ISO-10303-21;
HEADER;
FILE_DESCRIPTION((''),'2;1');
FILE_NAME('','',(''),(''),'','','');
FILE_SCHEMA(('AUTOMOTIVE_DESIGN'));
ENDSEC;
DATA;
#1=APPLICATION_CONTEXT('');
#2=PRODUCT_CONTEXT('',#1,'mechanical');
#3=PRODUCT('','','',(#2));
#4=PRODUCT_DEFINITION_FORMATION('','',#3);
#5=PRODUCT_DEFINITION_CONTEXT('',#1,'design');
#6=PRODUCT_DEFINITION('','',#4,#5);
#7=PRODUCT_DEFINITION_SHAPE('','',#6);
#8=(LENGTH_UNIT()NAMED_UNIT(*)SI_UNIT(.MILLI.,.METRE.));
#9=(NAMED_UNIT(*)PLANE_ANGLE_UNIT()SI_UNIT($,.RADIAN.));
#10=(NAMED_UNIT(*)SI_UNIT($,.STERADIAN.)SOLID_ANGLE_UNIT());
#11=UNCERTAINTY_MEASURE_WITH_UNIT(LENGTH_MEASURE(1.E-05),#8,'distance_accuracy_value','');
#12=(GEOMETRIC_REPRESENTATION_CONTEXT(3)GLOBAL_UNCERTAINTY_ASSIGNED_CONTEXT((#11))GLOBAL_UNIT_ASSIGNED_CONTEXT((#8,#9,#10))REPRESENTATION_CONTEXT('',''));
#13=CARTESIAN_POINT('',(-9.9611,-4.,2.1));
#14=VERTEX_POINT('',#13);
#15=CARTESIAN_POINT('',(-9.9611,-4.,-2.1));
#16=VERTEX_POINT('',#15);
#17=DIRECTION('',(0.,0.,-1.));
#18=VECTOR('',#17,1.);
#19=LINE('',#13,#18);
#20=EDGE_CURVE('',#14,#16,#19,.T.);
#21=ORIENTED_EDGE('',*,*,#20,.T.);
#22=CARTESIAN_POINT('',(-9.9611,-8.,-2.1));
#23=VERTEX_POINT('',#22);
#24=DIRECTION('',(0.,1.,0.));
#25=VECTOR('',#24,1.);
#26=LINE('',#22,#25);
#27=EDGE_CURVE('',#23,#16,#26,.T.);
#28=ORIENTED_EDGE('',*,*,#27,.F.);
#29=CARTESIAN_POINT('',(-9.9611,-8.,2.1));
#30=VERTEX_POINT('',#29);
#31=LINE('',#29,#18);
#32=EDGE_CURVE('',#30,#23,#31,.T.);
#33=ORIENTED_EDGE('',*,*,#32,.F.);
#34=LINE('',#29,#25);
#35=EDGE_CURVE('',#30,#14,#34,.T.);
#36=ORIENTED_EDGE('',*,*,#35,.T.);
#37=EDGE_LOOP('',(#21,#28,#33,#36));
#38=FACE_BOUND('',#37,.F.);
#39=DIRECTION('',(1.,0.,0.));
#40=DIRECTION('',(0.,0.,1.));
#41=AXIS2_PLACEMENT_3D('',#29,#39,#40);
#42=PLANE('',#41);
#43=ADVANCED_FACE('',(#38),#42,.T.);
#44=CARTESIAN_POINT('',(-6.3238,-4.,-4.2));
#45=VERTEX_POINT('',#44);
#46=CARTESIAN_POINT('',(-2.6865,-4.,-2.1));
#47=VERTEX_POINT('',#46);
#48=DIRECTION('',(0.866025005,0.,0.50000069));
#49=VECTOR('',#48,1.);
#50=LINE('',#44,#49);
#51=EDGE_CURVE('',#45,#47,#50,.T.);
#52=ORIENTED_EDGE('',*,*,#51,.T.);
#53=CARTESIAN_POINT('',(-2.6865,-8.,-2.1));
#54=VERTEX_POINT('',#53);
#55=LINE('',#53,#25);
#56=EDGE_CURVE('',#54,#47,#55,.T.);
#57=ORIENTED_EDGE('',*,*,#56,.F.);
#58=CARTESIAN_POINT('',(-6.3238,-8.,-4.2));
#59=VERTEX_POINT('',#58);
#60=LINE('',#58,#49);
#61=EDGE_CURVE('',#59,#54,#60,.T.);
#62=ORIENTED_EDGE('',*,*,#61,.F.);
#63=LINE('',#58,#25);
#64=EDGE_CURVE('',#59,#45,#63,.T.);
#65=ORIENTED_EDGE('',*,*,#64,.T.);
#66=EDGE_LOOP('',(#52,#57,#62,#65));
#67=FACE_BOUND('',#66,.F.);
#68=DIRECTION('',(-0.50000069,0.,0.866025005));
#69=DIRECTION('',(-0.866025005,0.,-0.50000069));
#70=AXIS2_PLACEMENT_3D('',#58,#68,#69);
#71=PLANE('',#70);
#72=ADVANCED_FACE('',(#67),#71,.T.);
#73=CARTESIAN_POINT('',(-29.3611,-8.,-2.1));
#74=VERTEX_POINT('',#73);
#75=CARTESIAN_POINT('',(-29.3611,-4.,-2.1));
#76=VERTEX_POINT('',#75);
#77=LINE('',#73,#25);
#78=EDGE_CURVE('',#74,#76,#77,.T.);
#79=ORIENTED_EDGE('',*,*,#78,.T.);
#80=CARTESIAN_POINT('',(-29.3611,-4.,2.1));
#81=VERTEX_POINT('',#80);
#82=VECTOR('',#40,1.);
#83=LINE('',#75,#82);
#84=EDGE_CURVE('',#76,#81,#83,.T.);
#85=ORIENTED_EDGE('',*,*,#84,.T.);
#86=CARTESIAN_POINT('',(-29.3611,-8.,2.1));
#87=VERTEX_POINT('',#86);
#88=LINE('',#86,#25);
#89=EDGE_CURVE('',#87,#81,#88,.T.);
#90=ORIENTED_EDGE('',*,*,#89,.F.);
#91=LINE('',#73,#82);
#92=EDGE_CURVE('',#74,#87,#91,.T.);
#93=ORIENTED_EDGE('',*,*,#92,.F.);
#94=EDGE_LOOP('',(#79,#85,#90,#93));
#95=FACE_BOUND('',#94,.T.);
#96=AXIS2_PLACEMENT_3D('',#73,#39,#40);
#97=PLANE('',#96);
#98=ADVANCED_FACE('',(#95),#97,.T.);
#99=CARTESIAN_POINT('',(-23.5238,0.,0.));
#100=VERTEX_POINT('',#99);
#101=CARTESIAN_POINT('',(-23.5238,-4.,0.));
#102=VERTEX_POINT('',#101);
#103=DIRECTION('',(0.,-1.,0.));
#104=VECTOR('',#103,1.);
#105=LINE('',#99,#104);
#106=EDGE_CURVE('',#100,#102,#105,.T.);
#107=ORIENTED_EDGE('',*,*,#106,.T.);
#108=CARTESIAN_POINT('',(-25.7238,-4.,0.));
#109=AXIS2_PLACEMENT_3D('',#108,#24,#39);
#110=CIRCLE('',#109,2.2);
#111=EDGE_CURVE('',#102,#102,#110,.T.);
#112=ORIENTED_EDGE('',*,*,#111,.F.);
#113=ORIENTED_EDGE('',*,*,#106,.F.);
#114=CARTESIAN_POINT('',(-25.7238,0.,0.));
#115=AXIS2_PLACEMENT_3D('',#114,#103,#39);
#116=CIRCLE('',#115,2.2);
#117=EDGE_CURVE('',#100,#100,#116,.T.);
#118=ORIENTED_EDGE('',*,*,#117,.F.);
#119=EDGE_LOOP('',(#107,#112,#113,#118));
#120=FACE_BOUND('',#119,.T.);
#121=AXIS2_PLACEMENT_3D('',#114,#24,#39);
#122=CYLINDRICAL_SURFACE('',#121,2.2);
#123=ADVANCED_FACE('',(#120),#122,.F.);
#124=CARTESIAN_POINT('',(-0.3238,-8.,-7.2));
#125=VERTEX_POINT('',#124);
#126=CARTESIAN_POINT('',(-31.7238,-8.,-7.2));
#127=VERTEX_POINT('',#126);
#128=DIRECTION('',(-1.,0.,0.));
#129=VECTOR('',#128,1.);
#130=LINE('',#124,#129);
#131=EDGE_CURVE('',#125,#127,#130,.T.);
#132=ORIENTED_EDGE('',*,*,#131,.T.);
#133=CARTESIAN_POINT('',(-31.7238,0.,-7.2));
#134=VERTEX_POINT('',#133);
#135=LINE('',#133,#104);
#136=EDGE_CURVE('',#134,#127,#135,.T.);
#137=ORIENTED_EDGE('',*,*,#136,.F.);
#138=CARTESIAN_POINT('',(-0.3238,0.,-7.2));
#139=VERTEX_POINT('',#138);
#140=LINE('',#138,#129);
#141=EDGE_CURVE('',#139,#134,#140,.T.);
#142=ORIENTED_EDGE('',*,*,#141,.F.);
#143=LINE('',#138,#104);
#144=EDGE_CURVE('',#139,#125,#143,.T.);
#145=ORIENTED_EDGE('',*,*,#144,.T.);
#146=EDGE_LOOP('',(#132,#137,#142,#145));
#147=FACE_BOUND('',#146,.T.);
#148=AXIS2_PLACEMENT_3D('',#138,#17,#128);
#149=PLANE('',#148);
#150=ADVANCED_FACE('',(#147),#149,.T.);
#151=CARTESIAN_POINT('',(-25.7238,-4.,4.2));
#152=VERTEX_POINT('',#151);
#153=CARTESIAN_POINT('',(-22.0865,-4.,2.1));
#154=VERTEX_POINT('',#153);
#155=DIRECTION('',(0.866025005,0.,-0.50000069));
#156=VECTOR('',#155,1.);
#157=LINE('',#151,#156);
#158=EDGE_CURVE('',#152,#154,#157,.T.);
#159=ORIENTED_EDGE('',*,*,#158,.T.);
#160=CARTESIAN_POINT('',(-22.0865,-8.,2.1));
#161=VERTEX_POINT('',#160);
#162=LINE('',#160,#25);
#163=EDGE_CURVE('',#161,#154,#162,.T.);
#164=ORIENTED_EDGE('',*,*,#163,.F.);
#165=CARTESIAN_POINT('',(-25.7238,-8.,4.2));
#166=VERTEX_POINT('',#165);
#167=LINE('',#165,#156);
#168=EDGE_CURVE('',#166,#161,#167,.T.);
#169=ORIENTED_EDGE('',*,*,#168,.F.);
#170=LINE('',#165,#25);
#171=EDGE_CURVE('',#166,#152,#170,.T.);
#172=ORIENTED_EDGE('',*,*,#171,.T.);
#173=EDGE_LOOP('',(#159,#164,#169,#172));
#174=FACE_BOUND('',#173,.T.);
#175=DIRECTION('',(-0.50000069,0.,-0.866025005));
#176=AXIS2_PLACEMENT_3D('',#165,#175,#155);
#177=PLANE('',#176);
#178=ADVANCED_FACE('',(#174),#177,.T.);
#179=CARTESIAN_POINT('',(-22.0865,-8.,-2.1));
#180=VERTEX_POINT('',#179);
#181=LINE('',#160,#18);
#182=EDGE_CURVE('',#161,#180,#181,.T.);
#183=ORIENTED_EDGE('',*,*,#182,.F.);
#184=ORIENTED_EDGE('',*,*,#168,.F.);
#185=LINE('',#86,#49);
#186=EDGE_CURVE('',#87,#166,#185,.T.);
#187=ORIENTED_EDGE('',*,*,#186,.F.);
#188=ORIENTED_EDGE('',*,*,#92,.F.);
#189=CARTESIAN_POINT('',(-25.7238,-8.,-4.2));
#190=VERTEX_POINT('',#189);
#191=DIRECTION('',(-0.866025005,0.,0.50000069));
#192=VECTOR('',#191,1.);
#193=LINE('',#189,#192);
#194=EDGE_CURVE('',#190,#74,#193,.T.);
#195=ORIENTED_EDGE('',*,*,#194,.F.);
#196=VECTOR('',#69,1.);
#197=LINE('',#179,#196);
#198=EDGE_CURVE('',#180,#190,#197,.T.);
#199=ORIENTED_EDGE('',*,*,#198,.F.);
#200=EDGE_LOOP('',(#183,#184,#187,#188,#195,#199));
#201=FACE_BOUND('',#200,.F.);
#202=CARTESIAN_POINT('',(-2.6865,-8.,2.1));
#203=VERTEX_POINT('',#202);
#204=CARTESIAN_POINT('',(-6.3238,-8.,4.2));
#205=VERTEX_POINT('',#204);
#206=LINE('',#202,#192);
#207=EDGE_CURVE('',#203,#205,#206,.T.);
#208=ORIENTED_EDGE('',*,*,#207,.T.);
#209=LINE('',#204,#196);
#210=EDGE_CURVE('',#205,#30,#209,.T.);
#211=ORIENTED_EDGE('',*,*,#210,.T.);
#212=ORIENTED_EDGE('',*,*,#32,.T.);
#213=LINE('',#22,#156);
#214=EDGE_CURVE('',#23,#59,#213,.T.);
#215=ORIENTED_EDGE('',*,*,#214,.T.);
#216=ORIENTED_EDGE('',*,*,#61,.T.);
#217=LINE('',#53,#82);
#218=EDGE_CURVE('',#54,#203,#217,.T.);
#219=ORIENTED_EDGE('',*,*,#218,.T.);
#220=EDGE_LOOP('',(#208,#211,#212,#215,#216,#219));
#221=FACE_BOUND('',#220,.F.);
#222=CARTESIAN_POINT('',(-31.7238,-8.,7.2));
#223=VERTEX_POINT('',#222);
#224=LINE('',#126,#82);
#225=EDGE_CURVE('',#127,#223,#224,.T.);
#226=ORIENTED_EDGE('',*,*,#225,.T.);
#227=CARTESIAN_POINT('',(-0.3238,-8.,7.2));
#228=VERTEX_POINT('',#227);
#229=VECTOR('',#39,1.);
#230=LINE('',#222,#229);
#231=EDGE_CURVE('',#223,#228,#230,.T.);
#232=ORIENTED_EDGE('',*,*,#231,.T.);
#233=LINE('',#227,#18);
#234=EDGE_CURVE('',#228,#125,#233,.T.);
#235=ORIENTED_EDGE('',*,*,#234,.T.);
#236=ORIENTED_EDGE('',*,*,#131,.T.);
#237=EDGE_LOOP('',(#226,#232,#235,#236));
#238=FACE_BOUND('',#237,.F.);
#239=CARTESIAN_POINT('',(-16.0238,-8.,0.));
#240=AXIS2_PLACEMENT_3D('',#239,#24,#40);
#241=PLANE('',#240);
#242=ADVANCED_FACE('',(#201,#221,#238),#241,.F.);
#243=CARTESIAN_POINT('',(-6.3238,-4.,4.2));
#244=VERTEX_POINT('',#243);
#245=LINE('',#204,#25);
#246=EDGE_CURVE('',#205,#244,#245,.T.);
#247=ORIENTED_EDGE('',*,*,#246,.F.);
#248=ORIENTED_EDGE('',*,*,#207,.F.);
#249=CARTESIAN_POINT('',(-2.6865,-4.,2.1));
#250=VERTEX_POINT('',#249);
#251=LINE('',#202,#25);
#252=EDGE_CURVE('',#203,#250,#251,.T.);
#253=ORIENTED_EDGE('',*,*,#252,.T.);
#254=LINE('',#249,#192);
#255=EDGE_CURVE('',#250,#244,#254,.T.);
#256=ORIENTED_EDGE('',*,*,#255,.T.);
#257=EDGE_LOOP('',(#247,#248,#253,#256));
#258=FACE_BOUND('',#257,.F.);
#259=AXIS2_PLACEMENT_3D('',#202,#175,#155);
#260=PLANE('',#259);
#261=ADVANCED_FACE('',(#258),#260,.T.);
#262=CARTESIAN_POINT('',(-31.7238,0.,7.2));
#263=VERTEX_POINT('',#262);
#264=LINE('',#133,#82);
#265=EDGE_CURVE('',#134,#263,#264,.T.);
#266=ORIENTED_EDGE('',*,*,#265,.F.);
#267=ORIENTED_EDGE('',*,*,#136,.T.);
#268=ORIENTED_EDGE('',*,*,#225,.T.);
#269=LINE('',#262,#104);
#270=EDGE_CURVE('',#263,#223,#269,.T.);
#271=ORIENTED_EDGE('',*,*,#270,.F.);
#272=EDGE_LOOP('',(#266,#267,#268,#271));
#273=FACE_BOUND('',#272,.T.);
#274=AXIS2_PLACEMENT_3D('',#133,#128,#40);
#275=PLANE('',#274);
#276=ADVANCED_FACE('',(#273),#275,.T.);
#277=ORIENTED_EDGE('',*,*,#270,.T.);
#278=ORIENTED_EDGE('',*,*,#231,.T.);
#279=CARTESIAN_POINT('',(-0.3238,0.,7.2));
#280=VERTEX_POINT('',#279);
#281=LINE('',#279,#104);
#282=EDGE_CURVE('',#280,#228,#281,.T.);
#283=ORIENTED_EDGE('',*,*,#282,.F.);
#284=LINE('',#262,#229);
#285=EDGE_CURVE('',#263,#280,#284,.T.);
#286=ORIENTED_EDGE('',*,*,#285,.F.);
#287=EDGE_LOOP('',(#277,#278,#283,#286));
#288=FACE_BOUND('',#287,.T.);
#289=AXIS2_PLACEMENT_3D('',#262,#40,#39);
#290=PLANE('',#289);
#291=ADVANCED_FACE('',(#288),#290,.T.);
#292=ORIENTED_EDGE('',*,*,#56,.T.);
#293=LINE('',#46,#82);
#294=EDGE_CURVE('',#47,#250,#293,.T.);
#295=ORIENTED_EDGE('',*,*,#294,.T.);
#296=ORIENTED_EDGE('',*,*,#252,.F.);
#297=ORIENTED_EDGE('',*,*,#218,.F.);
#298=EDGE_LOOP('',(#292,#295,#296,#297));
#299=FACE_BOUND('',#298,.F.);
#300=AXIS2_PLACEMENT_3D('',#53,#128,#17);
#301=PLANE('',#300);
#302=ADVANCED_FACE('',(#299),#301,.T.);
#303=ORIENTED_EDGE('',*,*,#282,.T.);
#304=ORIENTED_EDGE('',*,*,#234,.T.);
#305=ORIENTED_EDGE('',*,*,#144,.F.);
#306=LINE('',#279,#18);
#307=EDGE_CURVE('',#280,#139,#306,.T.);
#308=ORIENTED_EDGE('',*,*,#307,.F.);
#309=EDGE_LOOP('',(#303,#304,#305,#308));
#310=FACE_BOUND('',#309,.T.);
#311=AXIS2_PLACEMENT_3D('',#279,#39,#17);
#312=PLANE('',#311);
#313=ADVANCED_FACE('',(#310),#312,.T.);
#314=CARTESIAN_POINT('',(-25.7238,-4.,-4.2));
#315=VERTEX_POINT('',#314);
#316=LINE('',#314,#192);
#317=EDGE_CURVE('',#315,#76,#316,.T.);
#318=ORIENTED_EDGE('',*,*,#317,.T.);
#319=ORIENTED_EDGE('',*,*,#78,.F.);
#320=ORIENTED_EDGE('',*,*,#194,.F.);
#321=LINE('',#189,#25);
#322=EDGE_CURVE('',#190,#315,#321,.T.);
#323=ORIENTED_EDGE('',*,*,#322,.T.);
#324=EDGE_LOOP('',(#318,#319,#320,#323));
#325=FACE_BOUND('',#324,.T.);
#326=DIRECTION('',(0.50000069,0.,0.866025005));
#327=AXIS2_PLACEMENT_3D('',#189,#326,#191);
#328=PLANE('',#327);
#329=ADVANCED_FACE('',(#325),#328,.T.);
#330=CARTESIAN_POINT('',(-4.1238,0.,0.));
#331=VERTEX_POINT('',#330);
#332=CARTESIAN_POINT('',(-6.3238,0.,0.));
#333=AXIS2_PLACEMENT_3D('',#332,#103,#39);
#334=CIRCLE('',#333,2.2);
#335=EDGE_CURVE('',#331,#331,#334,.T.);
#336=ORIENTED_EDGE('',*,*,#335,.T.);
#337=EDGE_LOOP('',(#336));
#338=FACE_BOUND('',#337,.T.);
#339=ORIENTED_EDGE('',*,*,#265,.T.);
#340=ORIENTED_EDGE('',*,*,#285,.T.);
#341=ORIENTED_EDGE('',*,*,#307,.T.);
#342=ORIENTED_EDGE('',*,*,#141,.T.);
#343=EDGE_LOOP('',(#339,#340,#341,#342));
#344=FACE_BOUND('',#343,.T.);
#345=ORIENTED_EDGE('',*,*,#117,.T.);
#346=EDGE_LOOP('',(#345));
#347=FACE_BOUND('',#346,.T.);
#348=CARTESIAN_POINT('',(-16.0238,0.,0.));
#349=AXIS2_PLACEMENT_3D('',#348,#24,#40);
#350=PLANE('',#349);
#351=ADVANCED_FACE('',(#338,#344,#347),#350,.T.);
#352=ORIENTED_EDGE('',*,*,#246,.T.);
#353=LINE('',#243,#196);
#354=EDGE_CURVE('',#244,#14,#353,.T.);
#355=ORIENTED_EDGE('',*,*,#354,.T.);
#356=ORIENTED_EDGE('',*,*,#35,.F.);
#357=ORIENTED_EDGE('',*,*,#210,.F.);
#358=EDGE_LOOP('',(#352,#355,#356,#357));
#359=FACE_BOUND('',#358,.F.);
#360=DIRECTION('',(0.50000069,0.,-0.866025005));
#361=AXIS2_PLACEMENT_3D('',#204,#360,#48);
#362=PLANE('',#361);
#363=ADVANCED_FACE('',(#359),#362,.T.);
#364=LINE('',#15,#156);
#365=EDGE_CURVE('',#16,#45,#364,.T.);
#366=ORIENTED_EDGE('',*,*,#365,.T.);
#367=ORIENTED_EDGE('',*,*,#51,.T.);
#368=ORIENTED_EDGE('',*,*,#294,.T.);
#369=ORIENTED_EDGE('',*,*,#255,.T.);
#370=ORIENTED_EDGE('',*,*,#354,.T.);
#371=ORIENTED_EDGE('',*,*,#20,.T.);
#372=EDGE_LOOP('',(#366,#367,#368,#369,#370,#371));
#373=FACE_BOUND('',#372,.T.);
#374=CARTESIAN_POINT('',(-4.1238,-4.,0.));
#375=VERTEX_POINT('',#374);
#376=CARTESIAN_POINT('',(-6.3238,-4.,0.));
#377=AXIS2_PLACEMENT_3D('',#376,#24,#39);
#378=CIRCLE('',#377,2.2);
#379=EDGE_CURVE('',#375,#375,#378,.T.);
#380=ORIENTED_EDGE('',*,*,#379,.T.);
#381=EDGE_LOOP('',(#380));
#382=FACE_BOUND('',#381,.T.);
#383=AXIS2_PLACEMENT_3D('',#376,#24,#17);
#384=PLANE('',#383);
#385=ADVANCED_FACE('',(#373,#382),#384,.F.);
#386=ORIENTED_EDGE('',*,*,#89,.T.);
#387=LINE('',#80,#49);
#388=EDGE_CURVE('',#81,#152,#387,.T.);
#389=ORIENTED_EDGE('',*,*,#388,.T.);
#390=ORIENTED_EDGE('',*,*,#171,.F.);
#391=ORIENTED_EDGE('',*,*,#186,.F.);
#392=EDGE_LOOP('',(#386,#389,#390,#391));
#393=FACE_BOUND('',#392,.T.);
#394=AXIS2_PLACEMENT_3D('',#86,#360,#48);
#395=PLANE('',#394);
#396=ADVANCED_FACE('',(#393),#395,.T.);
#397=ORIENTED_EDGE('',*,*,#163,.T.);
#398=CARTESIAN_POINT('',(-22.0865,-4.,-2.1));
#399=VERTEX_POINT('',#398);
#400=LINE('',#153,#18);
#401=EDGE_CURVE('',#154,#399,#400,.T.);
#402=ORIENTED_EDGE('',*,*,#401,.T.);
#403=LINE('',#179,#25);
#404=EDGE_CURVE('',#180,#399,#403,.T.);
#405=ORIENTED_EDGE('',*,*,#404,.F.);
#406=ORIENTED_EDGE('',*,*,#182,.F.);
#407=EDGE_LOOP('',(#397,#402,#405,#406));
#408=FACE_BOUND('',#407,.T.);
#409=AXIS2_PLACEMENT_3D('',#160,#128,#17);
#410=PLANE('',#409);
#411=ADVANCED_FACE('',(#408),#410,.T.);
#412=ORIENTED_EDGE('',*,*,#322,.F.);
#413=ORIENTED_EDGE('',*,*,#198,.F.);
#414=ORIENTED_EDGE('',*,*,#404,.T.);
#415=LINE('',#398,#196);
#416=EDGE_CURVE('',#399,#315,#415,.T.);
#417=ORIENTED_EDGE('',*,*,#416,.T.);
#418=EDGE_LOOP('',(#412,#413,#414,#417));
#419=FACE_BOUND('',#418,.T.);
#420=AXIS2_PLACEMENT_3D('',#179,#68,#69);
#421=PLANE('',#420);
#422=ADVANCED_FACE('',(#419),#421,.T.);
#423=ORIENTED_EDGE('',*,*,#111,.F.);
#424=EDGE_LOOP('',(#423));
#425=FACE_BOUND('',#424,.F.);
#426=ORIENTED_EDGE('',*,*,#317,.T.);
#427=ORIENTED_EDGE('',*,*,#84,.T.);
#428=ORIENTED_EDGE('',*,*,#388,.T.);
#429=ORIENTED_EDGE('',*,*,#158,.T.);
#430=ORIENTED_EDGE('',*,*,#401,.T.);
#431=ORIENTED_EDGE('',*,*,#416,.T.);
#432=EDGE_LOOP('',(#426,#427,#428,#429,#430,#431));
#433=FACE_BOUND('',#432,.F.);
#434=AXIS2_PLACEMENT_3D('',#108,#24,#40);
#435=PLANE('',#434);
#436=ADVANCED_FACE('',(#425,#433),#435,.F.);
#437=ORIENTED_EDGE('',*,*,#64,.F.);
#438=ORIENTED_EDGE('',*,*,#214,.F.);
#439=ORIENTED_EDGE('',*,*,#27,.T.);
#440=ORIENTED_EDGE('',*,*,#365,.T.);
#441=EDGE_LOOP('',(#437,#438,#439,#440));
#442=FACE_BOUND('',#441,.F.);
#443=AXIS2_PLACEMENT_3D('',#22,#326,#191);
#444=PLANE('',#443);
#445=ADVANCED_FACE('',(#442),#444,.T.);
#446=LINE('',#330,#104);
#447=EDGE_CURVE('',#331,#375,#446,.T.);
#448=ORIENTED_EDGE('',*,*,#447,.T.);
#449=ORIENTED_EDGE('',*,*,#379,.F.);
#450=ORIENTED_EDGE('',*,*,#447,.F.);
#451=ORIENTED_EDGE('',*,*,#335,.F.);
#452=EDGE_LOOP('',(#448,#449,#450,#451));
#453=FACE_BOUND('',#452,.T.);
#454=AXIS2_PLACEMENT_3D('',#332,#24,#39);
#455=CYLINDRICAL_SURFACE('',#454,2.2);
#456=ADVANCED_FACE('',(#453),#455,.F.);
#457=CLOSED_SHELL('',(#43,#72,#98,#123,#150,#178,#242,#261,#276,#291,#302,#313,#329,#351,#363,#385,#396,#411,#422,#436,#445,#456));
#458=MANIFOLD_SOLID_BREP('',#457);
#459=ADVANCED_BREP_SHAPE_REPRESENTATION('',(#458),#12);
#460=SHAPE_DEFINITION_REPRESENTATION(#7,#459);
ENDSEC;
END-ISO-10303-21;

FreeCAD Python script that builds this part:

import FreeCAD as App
import Part
import Sketcher
Q = App.Units.Quantity

doc = App.newDocument("Part")
body = doc.addObject("PartDesign::Body", "Body")

# Sketch on XZ plane
sketch1 = body.newObject("Sketcher::SketchObject", "Sketch")
sketch1.AttachmentSupport = (doc.getObject("XZ_Plane"), [""])
sketch1.MapMode = "FlatFace"
sketch1.addGeometry(Part.LineSegment(App.Vector(-0.3238, 7.2, 0), App.Vector(-31.7238, 7.2, 0)), False)
sketch1.addGeometry(Part.LineSegment(App.Vector(-31.7238, 7.2, 0), App.Vector(-31.7238, -7.2, 0)), False)
sketch1.addGeometry(Part.LineSegment(App.Vector(-31.7238, -7.2, 0), App.Vector(-0.3238, -7.2, 0)), False)
sketch1.addGeometry(Part.LineSegment(App.Vector(-0.3238, -7.2, 0), App.Vector(-0.3238, 7.2, 0)), False)
sketch1.addGeometry(Part.Circle(App.Vector(-25.7238, 0, 0), App.Vector(0, 0, 1), 2.2), False)
sketch1.addGeometry(Part.Circle(App.Vector(-6.3238, 0, 0), App.Vector(0, 0, 1), 2.2), False)
sketch1.addConstraint(Sketcher.Constraint("Coincident", 0, 2, 1, 1))
sketch1.addConstraint(Sketcher.Constraint("Coincident", 1, 2, 2, 1))
sketch1.addConstraint(Sketcher.Constraint("Coincident", 2, 2, 3, 1))
sketch1.addConstraint(Sketcher.Constraint("Coincident", 3, 2, 0, 1))
sketch1.addConstraint(Sketcher.Constraint("Horizontal", 0))
sketch1.addConstraint(Sketcher.Constraint("Vertical", 1))
sketch1.addConstraint(Sketcher.Constraint("Horizontal", 2))
sketch1.addConstraint(Sketcher.Constraint("Vertical", 3))
sketch1.addConstraint(Sketcher.Constraint("Equal", 4, 5))
sketch1.addConstraint(Sketcher.Constraint("PointOnObject", 4, 3, -1))
sketch1.addConstraint(Sketcher.Constraint("PointOnObject", 5, 3, -1))
sketch1.addConstraint(Sketcher.Constraint("Diameter", 4, Q("4.4 mm")))
sketch1.addConstraint(Sketcher.Constraint("DistanceX", 0, 2, 0, 1, Q("31.4 mm")))
sketch1.addConstraint(Sketcher.Constraint("DistanceY", 1, 2, 1, 1, Q("14.4 mm")))
sketch1.addConstraint(Sketcher.Constraint("DistanceX", 0, 2, 4, 3, Q("6 mm")))
sketch1.addConstraint(Sketcher.Constraint("DistanceX", 5, 3, 2, 2, Q("6 mm")))
sketch1.addConstraint(Sketcher.Constraint("DistanceX", 4, 3, -1, 1, Q("25.7238 mm")))
sketch1.addConstraint(Sketcher.Constraint("DistanceY", -1, 1, 0, 2, Q("7.2 mm")))
pad1 = body.newObject("PartDesign::Pad", "Pad")
pad1.Profile = sketch1
pad1.Length = 8

# Sketch on XZ plane
sketch2 = body.newObject("Sketcher::SketchObject", "Sketch001")
sketch2.AttachmentSupport = (doc.getObject("XZ_Plane"), [""])
sketch2.MapMode = "FlatFace"
sketch2.AttachmentOffset = App.Placement(App.Vector(0, 0, 8), App.Rotation())
sketch2.addGeometry(Part.LineSegment(App.Vector(-29.3611, 2.1, 0), App.Vector(-29.3611, -2.1, 0)), False)
sketch2.addGeometry(Part.LineSegment(App.Vector(-29.3611, -2.1, 0), App.Vector(-25.7238, -4.2, 0)), False)
sketch2.addGeometry(Part.LineSegment(App.Vector(-25.7238, -4.2, 0), App.Vector(-22.0865, -2.1, 0)), False)
sketch2.addGeometry(Part.LineSegment(App.Vector(-22.0865, -2.1, 0), App.Vector(-22.0865, 2.1, 0)), False)
sketch2.addGeometry(Part.LineSegment(App.Vector(-22.0865, 2.1, 0), App.Vector(-25.7238, 4.2, 0)), False)
sketch2.addGeometry(Part.LineSegment(App.Vector(-25.7238, 4.2, 0), App.Vector(-29.3611, 2.1, 0)), False)
sketch2.addConstraint(Sketcher.Constraint("Coincident", 0, 2, 1, 1))
sketch2.addConstraint(Sketcher.Constraint("Coincident", 1, 2, 2, 1))
sketch2.addConstraint(Sketcher.Constraint("Coincident", 2, 2, 3, 1))
sketch2.addConstraint(Sketcher.Constraint("Coincident", 3, 2, 4, 1))
sketch2.addConstraint(Sketcher.Constraint("Coincident", 4, 2, 5, 1))
sketch2.addConstraint(Sketcher.Constraint("Coincident", 5, 2, 0, 1))
sketch2.addConstraint(Sketcher.Constraint("Vertical", 0))
sketch2.addConstraint(Sketcher.Constraint("Vertical", 3))
sketch2.addConstraint(Sketcher.Constraint("Symmetric", 1, 2, 4, 2, -1))
sketch2.addConstraint(Sketcher.Constraint("Parallel", 1, 4))
sketch2.addConstraint(Sketcher.Constraint("Parallel", 2, 5))
sketch2.addConstraint(Sketcher.Constraint("Horizontal", 0, 2, 2, 2))
sketch2.addConstraint(Sketcher.Constraint("Horizontal", 3, 2, 5, 2))
sketch2.addConstraint(Sketcher.Constraint("Angle", 1, Q("-30 deg")))
sketch2.addConstraint(Sketcher.Constraint("DistanceY", 0, 2, 0, 1, Q("4.2 mm")))
sketch2.addConstraint(Sketcher.Constraint("Distance", 1, Q("4.2 mm")))
sketch2.addConstraint(Sketcher.Constraint("DistanceX", 0, 2, -1, 1, Q("29.361 mm")))
pocket1 = body.newObject("PartDesign::Pocket", "Pocket")
pocket1.Profile = sketch2
pocket1.Length = 4
doc.recompute()

datumplane = body.newObject("PartDesign::Plane", "DatumPlane")
datumplane.AttachmentSupport = (doc.getObject("YZ_Plane"), [""])
datumplane.MapMode = "FlatFace"
datumplane.AttachmentOffset = App.Placement(App.Vector(0, 0, -16.0238), App.Rotation())
mirrored = body.newObject("PartDesign::Mirrored", "Mirrored")
mirrored.Originals = [pocket1]
mirrored.MirrorPlane = (datumplane, [""])
body.Tip = mirrored

doc.recompute()
